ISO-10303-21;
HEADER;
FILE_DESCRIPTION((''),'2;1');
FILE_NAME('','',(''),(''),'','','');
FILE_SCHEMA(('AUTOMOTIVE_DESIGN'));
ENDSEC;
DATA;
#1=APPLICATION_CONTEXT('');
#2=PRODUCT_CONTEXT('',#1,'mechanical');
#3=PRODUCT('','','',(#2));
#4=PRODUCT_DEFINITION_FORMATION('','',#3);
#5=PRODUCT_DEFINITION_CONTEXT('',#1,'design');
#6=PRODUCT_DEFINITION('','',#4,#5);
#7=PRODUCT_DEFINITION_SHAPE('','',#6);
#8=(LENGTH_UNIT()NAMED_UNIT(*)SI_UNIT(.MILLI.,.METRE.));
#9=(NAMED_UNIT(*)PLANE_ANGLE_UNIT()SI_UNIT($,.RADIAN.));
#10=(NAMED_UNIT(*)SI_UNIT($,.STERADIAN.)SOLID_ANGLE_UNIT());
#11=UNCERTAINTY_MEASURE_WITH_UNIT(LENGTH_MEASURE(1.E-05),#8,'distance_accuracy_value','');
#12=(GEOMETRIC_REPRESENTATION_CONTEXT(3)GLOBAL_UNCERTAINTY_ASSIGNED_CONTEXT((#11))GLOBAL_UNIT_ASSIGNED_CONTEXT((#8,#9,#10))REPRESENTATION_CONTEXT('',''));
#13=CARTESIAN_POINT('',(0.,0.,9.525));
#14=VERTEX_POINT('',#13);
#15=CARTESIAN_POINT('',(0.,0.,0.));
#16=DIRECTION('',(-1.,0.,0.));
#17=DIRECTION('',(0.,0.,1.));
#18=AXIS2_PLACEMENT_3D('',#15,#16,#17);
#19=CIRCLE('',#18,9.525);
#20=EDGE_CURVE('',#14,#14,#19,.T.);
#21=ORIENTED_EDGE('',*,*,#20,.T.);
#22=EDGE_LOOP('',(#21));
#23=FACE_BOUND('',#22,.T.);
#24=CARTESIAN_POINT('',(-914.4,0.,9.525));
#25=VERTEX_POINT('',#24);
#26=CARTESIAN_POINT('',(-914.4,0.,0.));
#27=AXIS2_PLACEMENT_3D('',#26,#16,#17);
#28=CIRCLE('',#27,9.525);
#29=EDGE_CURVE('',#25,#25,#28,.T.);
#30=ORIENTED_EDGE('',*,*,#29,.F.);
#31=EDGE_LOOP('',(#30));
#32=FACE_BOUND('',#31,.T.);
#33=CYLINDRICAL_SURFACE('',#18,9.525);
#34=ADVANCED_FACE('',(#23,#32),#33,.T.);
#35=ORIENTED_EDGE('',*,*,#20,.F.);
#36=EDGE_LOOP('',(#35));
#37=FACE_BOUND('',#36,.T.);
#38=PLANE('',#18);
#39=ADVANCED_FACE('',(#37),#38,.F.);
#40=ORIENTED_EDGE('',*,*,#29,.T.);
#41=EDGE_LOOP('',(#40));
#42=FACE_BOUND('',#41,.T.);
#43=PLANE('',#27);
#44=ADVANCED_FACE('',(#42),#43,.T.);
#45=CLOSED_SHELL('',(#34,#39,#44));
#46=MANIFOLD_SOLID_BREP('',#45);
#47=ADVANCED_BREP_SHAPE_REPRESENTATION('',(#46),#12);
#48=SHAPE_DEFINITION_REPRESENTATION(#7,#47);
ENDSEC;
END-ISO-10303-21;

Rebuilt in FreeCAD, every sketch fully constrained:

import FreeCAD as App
import Part
import Sketcher

V = App.Vector
Q = App.Units.Quantity

doc = App.newDocument("Part")
body = doc.addObject("PartDesign::Body", "Body")

sketch1 = body.newObject("Sketcher::SketchObject", "Sketch")
sketch1.AttachmentSupport = (doc.getObject("YZ_Plane"), [""])
sketch1.MapMode = "FlatFace"
sketch1.addGeometry(Part.Circle(V(0, 0, 0), V(0, 0, 1), 10), False)
sketch1.addConstraint(Sketcher.Constraint("Coincident", 0, 3, -1, 1))
sketch1.addConstraint(Sketcher.Constraint("Diameter", 0, Q("0.75 in")))

sketch2 = body.newObject("Sketcher::SketchObject", "Sketch001")
sketch2.AttachmentSupport = (doc.getObject("XY_Plane"), [""])
sketch2.MapMode = "FlatFace"
sketch2.addGeometry(Part.LineSegment(V(0, 0, 0), V(-914, 0, 0)), False)
sketch2.addConstraint(Sketcher.Constraint("Horizontal", 0))
sketch2.addConstraint(Sketcher.Constraint("Coincident", 0, 1, -1, 1))
sketch2.addConstraint(Sketcher.Constraint("DistanceX", 0, 2, 0, 1, Q("36 in")))
doc.recompute()

additivepipe = body.newObject("PartDesign::AdditivePipe", "AdditivePipe")
additivepipe.Profile = sketch1
additivepipe.Spine = (sketch2, ["Edge1"])

doc.recompute()
